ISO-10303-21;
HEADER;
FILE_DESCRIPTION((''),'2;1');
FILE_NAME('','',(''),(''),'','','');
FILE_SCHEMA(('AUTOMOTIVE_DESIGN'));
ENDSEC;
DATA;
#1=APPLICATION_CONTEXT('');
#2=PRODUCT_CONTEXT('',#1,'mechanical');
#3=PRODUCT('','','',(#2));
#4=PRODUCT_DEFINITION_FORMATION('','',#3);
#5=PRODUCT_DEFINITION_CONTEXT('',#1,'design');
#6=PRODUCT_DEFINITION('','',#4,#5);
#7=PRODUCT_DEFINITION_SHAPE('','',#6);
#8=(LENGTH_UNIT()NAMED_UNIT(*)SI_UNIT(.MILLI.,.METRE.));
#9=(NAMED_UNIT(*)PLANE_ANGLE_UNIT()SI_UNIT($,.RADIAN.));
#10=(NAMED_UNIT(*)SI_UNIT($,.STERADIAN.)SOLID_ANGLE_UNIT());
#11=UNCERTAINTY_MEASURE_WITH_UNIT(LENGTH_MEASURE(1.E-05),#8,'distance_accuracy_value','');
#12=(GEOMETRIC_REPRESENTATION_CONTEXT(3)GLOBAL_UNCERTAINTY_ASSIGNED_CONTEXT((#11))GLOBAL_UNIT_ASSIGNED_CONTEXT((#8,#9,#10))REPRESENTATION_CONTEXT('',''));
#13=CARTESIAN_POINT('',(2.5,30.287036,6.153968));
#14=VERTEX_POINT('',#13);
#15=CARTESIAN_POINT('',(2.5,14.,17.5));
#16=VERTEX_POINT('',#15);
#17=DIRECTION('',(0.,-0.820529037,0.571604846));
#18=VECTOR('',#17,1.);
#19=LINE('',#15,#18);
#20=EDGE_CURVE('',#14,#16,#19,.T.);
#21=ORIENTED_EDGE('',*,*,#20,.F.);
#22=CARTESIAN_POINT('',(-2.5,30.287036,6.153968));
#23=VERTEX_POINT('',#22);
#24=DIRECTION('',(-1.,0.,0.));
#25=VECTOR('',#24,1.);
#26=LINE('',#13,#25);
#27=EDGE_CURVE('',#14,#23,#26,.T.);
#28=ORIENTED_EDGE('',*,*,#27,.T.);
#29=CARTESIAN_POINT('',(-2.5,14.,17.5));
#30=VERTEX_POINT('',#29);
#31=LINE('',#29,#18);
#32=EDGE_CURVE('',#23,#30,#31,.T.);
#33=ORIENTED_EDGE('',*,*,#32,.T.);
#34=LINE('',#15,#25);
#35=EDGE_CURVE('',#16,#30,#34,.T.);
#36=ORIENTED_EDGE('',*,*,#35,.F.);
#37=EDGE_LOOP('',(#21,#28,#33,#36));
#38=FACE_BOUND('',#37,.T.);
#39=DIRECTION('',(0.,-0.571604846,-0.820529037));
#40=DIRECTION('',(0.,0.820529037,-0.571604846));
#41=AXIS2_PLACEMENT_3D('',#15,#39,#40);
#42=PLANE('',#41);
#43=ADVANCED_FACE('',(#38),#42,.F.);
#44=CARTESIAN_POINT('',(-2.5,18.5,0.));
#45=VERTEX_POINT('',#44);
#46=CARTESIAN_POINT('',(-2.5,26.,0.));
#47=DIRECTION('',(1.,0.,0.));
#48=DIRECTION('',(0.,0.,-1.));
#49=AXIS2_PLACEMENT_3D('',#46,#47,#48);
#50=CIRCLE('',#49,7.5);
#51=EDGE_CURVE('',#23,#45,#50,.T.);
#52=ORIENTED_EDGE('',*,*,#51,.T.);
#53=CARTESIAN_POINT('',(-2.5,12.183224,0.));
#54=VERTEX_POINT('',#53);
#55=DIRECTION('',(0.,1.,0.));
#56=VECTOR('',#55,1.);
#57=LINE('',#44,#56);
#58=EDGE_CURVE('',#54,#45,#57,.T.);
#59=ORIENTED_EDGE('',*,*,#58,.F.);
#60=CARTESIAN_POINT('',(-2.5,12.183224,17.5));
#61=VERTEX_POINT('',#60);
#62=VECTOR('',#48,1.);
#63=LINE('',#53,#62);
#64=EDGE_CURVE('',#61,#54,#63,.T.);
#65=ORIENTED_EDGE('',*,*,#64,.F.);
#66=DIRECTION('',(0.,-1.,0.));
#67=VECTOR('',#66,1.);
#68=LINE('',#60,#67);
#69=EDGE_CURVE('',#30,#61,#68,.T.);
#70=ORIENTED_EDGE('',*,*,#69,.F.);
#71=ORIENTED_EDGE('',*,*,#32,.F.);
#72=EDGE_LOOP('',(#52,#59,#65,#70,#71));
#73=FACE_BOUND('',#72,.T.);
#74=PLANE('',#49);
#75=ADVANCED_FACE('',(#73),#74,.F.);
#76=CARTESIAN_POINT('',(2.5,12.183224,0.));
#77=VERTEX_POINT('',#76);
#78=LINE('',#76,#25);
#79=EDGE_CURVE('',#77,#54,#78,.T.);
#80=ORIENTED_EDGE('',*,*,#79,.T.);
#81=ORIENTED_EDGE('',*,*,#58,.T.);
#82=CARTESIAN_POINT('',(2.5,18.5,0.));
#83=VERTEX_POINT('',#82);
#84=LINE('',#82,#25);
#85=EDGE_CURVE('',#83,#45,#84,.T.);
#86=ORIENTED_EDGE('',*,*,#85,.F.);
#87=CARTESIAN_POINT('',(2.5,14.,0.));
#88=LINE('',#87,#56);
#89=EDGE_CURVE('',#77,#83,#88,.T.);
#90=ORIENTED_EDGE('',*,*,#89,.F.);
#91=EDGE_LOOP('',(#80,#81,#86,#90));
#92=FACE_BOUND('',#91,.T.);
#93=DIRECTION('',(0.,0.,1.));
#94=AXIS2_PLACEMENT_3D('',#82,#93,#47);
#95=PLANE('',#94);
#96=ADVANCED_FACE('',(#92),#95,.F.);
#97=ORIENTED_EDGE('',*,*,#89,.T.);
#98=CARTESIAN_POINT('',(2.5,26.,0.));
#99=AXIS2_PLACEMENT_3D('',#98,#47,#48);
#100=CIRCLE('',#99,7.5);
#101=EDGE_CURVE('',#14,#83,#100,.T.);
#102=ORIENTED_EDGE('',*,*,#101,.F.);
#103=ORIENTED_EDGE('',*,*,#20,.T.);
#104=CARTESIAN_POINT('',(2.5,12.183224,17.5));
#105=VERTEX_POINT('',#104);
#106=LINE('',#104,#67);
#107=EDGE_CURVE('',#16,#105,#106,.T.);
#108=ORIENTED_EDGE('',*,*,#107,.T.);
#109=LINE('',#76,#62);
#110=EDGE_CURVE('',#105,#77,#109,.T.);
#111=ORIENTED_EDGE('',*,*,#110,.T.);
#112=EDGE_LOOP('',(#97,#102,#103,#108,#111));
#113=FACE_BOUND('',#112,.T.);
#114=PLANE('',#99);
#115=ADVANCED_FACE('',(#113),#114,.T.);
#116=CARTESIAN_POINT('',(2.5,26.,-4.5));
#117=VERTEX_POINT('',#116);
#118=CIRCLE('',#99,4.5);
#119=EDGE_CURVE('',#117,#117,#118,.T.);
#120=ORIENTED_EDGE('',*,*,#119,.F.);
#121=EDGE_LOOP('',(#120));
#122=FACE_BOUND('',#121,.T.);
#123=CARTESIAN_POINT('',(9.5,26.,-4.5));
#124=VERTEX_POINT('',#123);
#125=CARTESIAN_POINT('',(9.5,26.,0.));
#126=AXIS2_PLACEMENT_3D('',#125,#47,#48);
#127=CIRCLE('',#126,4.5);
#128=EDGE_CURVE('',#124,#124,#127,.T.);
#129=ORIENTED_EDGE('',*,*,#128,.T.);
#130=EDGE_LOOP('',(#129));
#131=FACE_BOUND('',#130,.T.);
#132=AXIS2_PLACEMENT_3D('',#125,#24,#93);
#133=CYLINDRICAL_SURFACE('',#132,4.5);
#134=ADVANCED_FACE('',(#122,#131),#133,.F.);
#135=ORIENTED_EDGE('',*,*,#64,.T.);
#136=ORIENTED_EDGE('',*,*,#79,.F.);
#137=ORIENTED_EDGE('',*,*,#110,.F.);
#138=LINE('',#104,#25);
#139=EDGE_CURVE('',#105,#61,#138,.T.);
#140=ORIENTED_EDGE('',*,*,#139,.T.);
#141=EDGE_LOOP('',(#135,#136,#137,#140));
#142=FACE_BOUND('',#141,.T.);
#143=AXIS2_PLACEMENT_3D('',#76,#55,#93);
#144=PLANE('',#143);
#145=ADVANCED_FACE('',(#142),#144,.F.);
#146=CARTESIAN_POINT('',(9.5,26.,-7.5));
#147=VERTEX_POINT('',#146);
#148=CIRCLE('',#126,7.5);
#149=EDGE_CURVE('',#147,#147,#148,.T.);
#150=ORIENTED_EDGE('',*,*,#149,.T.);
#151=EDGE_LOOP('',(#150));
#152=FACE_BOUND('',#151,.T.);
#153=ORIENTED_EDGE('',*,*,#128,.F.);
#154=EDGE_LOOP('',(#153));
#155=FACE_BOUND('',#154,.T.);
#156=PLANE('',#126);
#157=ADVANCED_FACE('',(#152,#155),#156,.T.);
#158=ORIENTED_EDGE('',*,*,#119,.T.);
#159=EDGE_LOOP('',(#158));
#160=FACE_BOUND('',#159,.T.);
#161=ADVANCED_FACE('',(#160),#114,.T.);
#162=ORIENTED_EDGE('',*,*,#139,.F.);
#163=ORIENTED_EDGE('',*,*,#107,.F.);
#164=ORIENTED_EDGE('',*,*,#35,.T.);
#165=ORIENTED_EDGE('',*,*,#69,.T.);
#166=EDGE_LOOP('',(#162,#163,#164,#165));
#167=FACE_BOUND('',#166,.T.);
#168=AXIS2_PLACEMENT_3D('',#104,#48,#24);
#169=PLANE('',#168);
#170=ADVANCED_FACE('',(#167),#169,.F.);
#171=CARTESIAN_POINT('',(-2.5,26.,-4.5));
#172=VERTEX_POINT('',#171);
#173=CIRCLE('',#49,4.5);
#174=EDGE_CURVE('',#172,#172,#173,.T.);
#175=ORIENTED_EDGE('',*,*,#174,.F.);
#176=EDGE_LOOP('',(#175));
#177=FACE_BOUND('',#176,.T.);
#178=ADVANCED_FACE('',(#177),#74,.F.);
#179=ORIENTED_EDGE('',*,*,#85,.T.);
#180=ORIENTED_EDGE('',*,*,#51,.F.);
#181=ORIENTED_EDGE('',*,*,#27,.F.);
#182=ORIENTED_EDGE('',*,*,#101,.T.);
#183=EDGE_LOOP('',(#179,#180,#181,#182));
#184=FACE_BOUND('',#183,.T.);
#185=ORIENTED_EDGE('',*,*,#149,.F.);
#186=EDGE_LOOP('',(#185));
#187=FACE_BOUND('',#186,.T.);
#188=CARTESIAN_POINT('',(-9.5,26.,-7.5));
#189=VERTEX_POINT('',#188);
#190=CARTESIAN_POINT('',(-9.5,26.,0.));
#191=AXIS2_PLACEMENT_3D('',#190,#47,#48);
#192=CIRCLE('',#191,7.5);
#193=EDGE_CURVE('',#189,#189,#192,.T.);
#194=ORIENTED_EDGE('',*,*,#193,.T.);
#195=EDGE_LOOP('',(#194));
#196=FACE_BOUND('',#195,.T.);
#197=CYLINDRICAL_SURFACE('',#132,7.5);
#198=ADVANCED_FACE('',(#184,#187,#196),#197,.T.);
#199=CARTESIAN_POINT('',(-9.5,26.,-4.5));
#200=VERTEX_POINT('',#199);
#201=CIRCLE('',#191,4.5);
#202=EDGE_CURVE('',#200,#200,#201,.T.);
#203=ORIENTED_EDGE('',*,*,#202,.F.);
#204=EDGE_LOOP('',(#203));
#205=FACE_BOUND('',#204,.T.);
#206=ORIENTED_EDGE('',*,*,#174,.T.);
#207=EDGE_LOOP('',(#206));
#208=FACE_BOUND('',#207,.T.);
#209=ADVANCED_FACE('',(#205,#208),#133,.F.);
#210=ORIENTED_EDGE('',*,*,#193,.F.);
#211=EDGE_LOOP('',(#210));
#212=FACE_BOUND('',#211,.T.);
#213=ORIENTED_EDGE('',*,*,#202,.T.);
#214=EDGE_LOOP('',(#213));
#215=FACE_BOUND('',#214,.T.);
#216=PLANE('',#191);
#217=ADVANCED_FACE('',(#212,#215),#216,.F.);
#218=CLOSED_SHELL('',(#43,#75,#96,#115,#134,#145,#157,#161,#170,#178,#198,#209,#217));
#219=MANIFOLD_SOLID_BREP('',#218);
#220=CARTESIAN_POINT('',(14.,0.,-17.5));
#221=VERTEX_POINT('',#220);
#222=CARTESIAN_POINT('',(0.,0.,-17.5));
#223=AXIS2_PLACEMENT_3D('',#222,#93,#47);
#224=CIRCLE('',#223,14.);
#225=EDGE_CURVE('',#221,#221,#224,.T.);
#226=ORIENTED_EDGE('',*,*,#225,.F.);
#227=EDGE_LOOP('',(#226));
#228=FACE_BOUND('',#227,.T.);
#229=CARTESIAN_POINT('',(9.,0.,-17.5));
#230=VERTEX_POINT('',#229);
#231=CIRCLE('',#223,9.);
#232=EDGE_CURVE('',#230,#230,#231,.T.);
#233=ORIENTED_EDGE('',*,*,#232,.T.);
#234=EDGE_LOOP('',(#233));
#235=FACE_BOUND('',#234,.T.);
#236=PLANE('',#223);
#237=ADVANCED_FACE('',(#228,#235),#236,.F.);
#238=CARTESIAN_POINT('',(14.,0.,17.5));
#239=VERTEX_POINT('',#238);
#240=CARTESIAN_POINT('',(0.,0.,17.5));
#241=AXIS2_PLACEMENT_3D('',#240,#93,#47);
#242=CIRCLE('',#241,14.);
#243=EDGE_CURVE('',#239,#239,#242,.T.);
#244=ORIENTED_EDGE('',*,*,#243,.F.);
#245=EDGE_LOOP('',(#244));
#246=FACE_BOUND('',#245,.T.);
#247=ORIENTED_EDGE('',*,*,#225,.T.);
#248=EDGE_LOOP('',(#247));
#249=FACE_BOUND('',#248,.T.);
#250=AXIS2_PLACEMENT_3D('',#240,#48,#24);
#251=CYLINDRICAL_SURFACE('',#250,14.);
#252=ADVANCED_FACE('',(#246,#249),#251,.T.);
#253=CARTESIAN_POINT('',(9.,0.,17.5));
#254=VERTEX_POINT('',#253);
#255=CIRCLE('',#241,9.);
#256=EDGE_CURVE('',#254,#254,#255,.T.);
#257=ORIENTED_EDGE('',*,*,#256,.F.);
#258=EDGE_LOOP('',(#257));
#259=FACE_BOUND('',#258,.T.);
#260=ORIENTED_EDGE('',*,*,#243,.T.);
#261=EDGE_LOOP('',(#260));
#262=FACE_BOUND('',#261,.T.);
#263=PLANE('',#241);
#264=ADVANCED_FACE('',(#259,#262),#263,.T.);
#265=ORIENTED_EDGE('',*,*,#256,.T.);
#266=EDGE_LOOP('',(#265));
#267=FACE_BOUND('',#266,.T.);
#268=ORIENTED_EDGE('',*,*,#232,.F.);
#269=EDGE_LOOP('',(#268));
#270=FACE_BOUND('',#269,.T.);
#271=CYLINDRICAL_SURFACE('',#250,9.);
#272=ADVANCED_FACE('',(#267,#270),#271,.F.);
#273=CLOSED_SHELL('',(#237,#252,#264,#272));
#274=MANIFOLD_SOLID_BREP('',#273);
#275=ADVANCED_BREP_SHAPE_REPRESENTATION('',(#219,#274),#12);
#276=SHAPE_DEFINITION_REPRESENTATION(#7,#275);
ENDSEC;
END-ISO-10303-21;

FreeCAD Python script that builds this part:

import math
import FreeCAD as App
import Part
import Sketcher
from FreeCAD import Vector
Q = App.Units.Quantity

doc = App.newDocument("Part")
body = doc.addObject("PartDesign::Body", "Body")

sketch1 = doc.addObject("Sketcher::SketchObject", "Sketch")
body.addObject(sketch1)
sketch1.AttachmentSupport = (doc.XY_Plane, [""])
sketch1.MapMode = "FlatFace"
sketch1.addGeometry(Part.Circle(Vector(0, 0, 0), Vector(0, 0, 1), 14), False)
sketch1.addGeometry(Part.Circle(Vector(0, 0, 0), Vector(0, 0, 1), 9), False)
sketch1.addConstraint(Sketcher.Constraint("Coincident", 0, 3, -1, 1))
sketch1.addConstraint(Sketcher.Constraint("Coincident", 1, 3, -1, 1))
sketch1.addConstraint(Sketcher.Constraint("Diameter", 0, Q("28 mm")))
sketch1.addConstraint(Sketcher.Constraint("Diameter", 1, Q("18 mm")))
pad1 = doc.addObject("PartDesign::Pad", "Pad")
body.addObject(pad1)
pad1.Profile = sketch1
pad1.Length = 35
pad1.Midplane = True
body2 = doc.addObject("PartDesign::Body", "Body001")

sketch2 = doc.addObject("Sketcher::SketchObject", "Sketch001")
body2.addObject(sketch2)
sketch2.AttachmentSupport = (doc.getObject("YZ_Plane001"), [""])
sketch2.MapMode = "FlatFace"
sketch2.addGeometry(Part.Circle(Vector(26, 0, 0), Vector(0, 0, 1), 7.5), False)
sketch2.addGeometry(Part.Circle(Vector(26, 0, 0), Vector(0, 0, 1), 4.5), False)
sketch2.addConstraint(Sketcher.Constraint("Coincident", 1, 3, 0, 3))
sketch2.addConstraint(Sketcher.Constraint("PointOnObject", 0, 3, -1))
sketch2.addConstraint(Sketcher.Constraint("Diameter", 0, Q("15 mm")))
sketch2.addConstraint(Sketcher.Constraint("Diameter", 1, Q("9 mm")))
sketch2.addConstraint(Sketcher.Constraint("DistanceX", -1, 1, 0, 3, Q("26 mm")))
pad2 = doc.addObject("PartDesign::Pad", "Pad001")
body2.addObject(pad2)
pad2.Profile = sketch2
pad2.Length = 19
pad2.Midplane = True

sketch3 = doc.addObject("Sketcher::SketchObject", "Sketch002")
body2.addObject(sketch3)
sketch3.AttachmentSupport = (doc.getObject("YZ_Plane001"), [""])
sketch3.MapMode = "FlatFace"
sketch3.addGeometry(Part.LineSegment(Vector(30.3, 6.2, 0), Vector(14, 17.5, 0)), False)
sketch3.addGeometry(Part.LineSegment(Vector(14, 17.5, 0), Vector(12.2, 17.5, 0)), False)
sketch3.addGeometry(Part.LineSegment(Vector(12.2, 17.5, 0), Vector(12.2, 0, 0)), False)
sketch3.addGeometry(Part.LineSegment(Vector(12.2, 0, 0), Vector(18.5, 0, 0)), False)
sketch3.addGeometry(Part.ArcOfCircle(Part.Circle(Vector(26, 0, 0), Vector(0, 0, 1), 7.5), math.radians(180), math.radians(415)), False)
sketch3.addConstraint(Sketcher.Constraint("Coincident", 0, 2, 1, 1))
sketch3.addConstraint(Sketcher.Constraint("Coincident", 1, 2, 2, 1))
sketch3.addConstraint(Sketcher.Constraint("Coincident", 2, 2, 3, 1))
sketch3.addConstraint(Sketcher.Constraint("Coincident", 3, 2, 4, 1))
sketch3.addConstraint(Sketcher.Constraint("Tangent", 4, 2, 0, 1))
sketch3.addConstraint(Sketcher.Constraint("Horizontal", 1))
sketch3.addConstraint(Sketcher.Constraint("Vertical", 2))
sketch3.addConstraint(Sketcher.Constraint("Horizontal", 3))
sketch3.addConstraint(Sketcher.Constraint("PointOnObject", 4, 3, -1))
sketch3.addConstraint(Sketcher.Constraint("PointOnObject", 2, 2, -1))
sketch3.addConstraint(Sketcher.Constraint("Radius", 4, Q("7.5 mm")))
sketch3.addConstraint(Sketcher.Constraint("DistanceY", 2, 2, 2, 1, Q("17.5 mm")))
sketch3.addConstraint(Sketcher.Constraint("DistanceX", -1, 1, 4, 3, Q("26 mm")))
sketch3.addConstraint(Sketcher.Constraint("DistanceX", -1, 1, 0, 2, Q("14 mm")))
sketch3.addConstraint(Sketcher.Constraint("DistanceX", 1, 2, 1, 1, Q("1.816776 mm")))
pad3 = doc.addObject("PartDesign::Pad", "Pad002")
body2.addObject(pad3)
pad3.Profile = sketch3
pad3.Length = 5
pad3.Midplane = True

doc.recompute()
